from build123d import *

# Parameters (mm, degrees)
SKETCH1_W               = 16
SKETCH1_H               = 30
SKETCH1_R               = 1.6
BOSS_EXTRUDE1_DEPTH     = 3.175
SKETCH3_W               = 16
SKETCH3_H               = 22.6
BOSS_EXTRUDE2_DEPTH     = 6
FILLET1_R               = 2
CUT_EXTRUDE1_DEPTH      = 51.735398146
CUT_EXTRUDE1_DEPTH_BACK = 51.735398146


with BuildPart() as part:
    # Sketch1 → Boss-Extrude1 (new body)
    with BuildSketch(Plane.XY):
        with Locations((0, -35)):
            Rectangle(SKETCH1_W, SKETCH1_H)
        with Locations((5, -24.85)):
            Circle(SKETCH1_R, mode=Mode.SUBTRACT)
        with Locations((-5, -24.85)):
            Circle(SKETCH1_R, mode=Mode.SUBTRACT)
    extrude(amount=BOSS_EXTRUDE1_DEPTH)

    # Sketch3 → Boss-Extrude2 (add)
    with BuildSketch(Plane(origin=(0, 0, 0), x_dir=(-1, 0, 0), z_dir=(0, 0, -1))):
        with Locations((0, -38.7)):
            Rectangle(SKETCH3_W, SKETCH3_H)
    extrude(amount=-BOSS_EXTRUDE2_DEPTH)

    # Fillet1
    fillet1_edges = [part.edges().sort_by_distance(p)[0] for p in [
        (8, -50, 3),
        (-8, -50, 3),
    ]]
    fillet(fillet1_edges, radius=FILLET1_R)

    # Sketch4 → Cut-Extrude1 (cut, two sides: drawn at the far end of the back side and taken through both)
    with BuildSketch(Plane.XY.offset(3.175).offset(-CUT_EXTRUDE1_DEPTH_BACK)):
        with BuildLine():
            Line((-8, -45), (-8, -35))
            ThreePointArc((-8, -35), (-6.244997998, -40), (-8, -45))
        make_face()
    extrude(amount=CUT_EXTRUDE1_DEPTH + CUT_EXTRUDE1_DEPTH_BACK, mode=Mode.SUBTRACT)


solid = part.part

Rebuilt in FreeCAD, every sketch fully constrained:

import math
import FreeCAD as App
import Part
import Sketcher


def edges_at(feature, points):
    """Names of the edges that pass closest to the given points."""
    edges = feature.Shape.Edges
    near = lambda p: min(range(len(edges)), key=lambda i: edges[i].distToShape(Part.Vertex(*p))[0])
    return sorted({f"Edge{near(p) + 1}" for p in points})

doc = App.newDocument("Part")
body = doc.addObject("PartDesign::Body", "Body")

# Sketch on XY plane
sketch1 = body.newObject("Sketcher::SketchObject", "Sketch")
sketch1.AttachmentSupport = (doc.getObject("XY_Plane"), [""])
sketch1.MapMode = "FlatFace"
sketch1.addGeometry([
    Part.LineSegment(App.Vector(-8, -20, 0), App.Vector(-8, -50, 0)),  # 0
    Part.LineSegment(App.Vector(-8, -50, 0), App.Vector(8, -50, 0)),  # 1
    Part.LineSegment(App.Vector(8, -50, 0), App.Vector(8, -20, 0)),  # 2
    Part.LineSegment(App.Vector(8, -20, 0), App.Vector(-8, -20, 0)),  # 3
    Part.Circle(App.Vector(-5, -24.9, 0), App.Vector(0, 0, 1), 1.6),  # 4
    Part.Circle(App.Vector(5, -24.9, 0), App.Vector(0, 0, 1), 1.6),  # 5
], False)
sketch1.addConstraint([
    Sketcher.Constraint("Coincident", 0, 2, 1, 1),
    Sketcher.Constraint("Coincident", 1, 2, 2, 1),
    Sketcher.Constraint("Coincident", 2, 2, 3, 1),
    Sketcher.Constraint("Coincident", 3, 2, 0, 1),
    Sketcher.Constraint("Vertical", 0),
    Sketcher.Constraint("Horizontal", 1),
    Sketcher.Constraint("Vertical", 2),
    Sketcher.Constraint("Horizontal", 3),
    Sketcher.Constraint("Equal", 4, 5),
    Sketcher.Constraint("Symmetric", 4, 3, 5, 3, -2),
    Sketcher.Constraint("Diameter", 4, 3.2),
    Sketcher.Constraint("DistanceX", 1, 1, 1, 2, 16.0),
    Sketcher.Constraint("DistanceY", 0, 2, 0, 1, 30.0),
    Sketcher.Constraint("DistanceX", 4, 3, -1, 1, 5.0),
    Sketcher.Constraint("DistanceX", 0, 2, -1, 1, 8.0),
    Sketcher.Constraint("DistanceY", 0, 2, -1, 1, 50.0),
    Sketcher.Constraint("DistanceY", 4, 3, -1, 1, 24.85),
])
pad1 = body.newObject("PartDesign::Pad", "Pad")
pad1.Profile = sketch1
pad1.Length = 3.175

# Sketch on XY plane
sketch2 = body.newObject("Sketcher::SketchObject", "Sketch001")
sketch2.AttachmentSupport = (doc.getObject("XY_Plane"), [""])
sketch2.MapMode = "FlatFace"
sketch2.addGeometry([
    Part.LineSegment(App.Vector(8, -27, 0), App.Vector(8, -50, 0)),
    Part.LineSegment(App.Vector(8, -50, 0), App.Vector(-8, -50, 0)),
    Part.LineSegment(App.Vector(-8, -50, 0), App.Vector(-8, -27, 0)),
    Part.LineSegment(App.Vector(-8, -27, 0), App.Vector(8, -27, 0)),
], False)
sketch2.addConstraint([
    Sketcher.Constraint("Coincident", 0, 2, 1, 1),
    Sketcher.Constraint("Coincident", 1, 2, 2, 1),
    Sketcher.Constraint("Coincident", 2, 2, 3, 1),
    Sketcher.Constraint("Coincident", 3, 2, 0, 1),
    Sketcher.Constraint("Vertical", 0),
    Sketcher.Constraint("Horizontal", 1),
    Sketcher.Constraint("Vertical", 2),
    Sketcher.Constraint("Horizontal", 3),
    Sketcher.Constraint("DistanceX", 1, 2, 1, 1, 16.0),
    Sketcher.Constraint("DistanceY", 0, 2, 0, 1, 22.6),
    Sketcher.Constraint("DistanceX", -1, 1, 0, 2, 8.0),
    Sketcher.Constraint("DistanceY", 0, 2, -1, 1, 50.0),
])
pad2 = body.newObject("PartDesign::Pad", "Pad001")
pad2.Profile = sketch2
pad2.Length = 6
doc.recompute()

fillet = body.newObject("PartDesign::Fillet", "Fillet")
fillet.Base = (pad2, edges_at(pad2, [(8, -50, 3), (-8, -50, 3)]))
fillet.Radius = 2

# Sketch on XY plane
sketch3 = body.newObject("Sketcher::SketchObject", "Sketch002")
sketch3.AttachmentSupport = (doc.getObject("XY_Plane"), [""])
sketch3.MapMode = "FlatFace"
sketch3.AttachmentOffset = App.Placement(App.Vector(0, 0, 3.175), App.Rotation())
sketch3.addGeometry([
    Part.LineSegment(App.Vector(-8, -35, 0), App.Vector(-8, -45, 0)),
    Part.ArcOfCircle(Part.Circle(App.Vector(-14, -40, 0), App.Vector(0, 0, 1), 8), math.radians(-39), math.radians(39)),
], False)
sketch3.addConstraint([
    Sketcher.Constraint("Coincident", 0, 1, 1, 2),
    Sketcher.Constraint("Coincident", 1, 1, 0, 2),
    Sketcher.Constraint("Vertical", 0),
    Sketcher.Constraint("Radius", 1, 8.0),
    Sketcher.Constraint("DistanceY", 0, 2, 0, 1, 10.0),
    Sketcher.Constraint("DistanceY", 1, 3, -1, 1, 40.0),
    Sketcher.Constraint("DistanceX", 0, 1, -1, 1, 8.0),
])
pocket1 = body.newObject("PartDesign::Pocket", "Pocket")
pocket1.Profile = sketch3
pocket1.Type = "ThroughAll"
pocket1.Midplane = True

doc.recompute()
